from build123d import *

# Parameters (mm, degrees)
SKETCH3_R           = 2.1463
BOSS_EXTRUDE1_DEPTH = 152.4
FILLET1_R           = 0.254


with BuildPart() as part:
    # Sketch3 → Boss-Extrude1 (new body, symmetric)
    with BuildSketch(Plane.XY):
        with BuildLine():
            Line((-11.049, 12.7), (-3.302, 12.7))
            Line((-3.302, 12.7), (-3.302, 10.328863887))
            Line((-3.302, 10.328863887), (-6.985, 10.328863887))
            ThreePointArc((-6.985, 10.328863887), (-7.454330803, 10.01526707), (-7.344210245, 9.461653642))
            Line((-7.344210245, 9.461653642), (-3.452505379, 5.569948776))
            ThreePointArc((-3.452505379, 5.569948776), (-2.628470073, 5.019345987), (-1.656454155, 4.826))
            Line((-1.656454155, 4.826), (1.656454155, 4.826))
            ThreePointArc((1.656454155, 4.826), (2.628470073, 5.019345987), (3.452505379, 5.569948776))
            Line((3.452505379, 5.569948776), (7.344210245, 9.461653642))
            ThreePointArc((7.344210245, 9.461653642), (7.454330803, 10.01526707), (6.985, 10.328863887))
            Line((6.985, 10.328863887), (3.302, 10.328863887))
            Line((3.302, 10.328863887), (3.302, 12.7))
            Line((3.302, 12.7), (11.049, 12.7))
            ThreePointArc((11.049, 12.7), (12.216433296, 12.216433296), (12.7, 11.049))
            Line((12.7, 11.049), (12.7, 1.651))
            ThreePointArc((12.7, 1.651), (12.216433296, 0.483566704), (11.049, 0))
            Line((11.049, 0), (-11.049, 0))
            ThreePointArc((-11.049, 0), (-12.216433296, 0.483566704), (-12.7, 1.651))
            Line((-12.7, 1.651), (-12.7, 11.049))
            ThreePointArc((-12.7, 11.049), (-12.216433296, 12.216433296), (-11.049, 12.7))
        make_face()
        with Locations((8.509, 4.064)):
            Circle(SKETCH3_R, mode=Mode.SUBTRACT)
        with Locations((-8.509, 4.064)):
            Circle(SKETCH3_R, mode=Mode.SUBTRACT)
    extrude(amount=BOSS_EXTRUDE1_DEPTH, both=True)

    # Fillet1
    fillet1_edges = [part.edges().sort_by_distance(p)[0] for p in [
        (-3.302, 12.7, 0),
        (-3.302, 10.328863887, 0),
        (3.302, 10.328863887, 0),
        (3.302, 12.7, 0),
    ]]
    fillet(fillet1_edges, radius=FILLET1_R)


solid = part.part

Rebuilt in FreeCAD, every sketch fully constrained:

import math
import FreeCAD as App
import Part
import Sketcher
from FreeCAD import Vector
Q = App.Units.Quantity


def edges_at(feature, points):
    """Names of the edges that pass closest to the given points."""
    edges = feature.Shape.Edges
    near = lambda p: min(range(len(edges)), key=lambda i: edges[i].distToShape(Part.Vertex(*p))[0])
    return sorted({f"Edge{near(p) + 1}" for p in points})

doc = App.newDocument("Part")
body = doc.addObject("PartDesign::Body", "Body")

# Sketch on XY plane
sketch1 = doc.addObject("Sketcher::SketchObject", "Sketch")
body.addObject(sketch1)
sketch1.AttachmentSupport = (doc.XY_Plane, [""])
sketch1.MapMode = "FlatFace"
sketch1.addGeometry([
    Part.LineSegment(Vector(-3.3, 12.7, 0), Vector(-11, 12.7, 0)),  # 0
    Part.ArcOfCircle(Part.Circle(Vector(-11, 11, 0), Vector(0, 0, 1), 1.7), math.radians(90), math.radians(180)),  # 1
    Part.LineSegment(Vector(-12.7, 11, 0), Vector(-12.7, 1.7, 0)),  # 2
    Part.ArcOfCircle(Part.Circle(Vector(-11, 1.7, 0), Vector(0, 0, 1), 1.7), math.radians(180), math.radians(270)),  # 3
    Part.LineSegment(Vector(-11, 0, 0), Vector(11, 0, 0)),  # 4
    Part.ArcOfCircle(Part.Circle(Vector(11, 1.7, 0), Vector(0, 0, 1), 1.7), math.radians(-90), math.radians(0)),  # 5
    Part.LineSegment(Vector(12.7, 1.7, 0), Vector(12.7, 11, 0)),  # 6
    Part.ArcOfCircle(Part.Circle(Vector(11, 11, 0), Vector(0, 0, 1), 1.7), math.radians(0), math.radians(90)),  # 7
    Part.LineSegment(Vector(11, 12.7, 0), Vector(3.3, 12.7, 0)),  # 8
    Part.LineSegment(Vector(3.3, 12.7, 0), Vector(3.3, 10.3, 0)),  # 9
    Part.LineSegment(Vector(3.3, 10.3, 0), Vector(7, 10.3, 0)),  # 10
    Part.ArcOfCircle(Part.Circle(Vector(7, 9.8, 0), Vector(0, 0, 1), 0.5), math.radians(-45), math.radians(90)),  # 11
    Part.LineSegment(Vector(7.3, 9.5, 0), Vector(3.5, 5.6, 0)),  # 12
    Part.ArcOfCircle(Part.Circle(Vector(1.7, 7.4, 0), Vector(0, 0, 1), 2.5), math.radians(-90), math.radians(-45)),  # 13
    Part.LineSegment(Vector(1.7, 4.8, 0), Vector(-1.7, 4.8, 0)),  # 14
    Part.ArcOfCircle(Part.Circle(Vector(-1.7, 7.4, 0), Vector(0, 0, 1), 2.5), math.radians(-135), math.radians(-90)),  # 15
    Part.LineSegment(Vector(-3.5, 5.6, 0), Vector(-7.3, 9.5, 0)),  # 16
    Part.ArcOfCircle(Part.Circle(Vector(-7, 9.8, 0), Vector(0, 0, 1), 0.5), math.radians(90), math.radians(225)),  # 17
    Part.LineSegment(Vector(-7, 10.3, 0), Vector(-3.3, 10.3, 0)),  # 18
    Part.LineSegment(Vector(-3.3, 10.3, 0), Vector(-3.3, 12.7, 0)),  # 19
    Part.Circle(Vector(8.5, 4.1, 0), Vector(0, 0, 1), 2.1),  # 20
    Part.Circle(Vector(-8.5, 4.1, 0), Vector(0, 0, 1), 2.1),  # 21
], False)
sketch1.addConstraint([
    Sketcher.Constraint("Tangent", 0, 2, 1, 1),
    Sketcher.Constraint("Tangent", 1, 2, 2, 1),
    Sketcher.Constraint("Tangent", 2, 2, 3, 1),
    Sketcher.Constraint("Tangent", 3, 2, 4, 1),
    Sketcher.Constraint("Tangent", 4, 2, 5, 1),
    Sketcher.Constraint("Tangent", 5, 2, 6, 1),
    Sketcher.Constraint("Tangent", 6, 2, 7, 1),
    Sketcher.Constraint("Tangent", 7, 2, 8, 1),
    Sketcher.Constraint("Coincident", 8, 2, 9, 1),
    Sketcher.Constraint("Coincident", 9, 2, 10, 1),
    Sketcher.Constraint("Tangent", 10, 2, 11, 2),
    Sketcher.Constraint("Tangent", 11, 1, 12, 1),
    Sketcher.Constraint("Tangent", 12, 2, 13, 2),
    Sketcher.Constraint("Tangent", 13, 1, 14, 1),
    Sketcher.Constraint("Tangent", 14, 2, 15, 2),
    Sketcher.Constraint("Tangent", 15, 1, 16, 1),
    Sketcher.Constraint("Tangent", 16, 2, 17, 2),
    Sketcher.Constraint("Tangent", 17, 1, 18, 1),
    Sketcher.Constraint("Coincident", 18, 2, 19, 1),
    Sketcher.Constraint("Coincident", 19, 2, 0, 1),
    Sketcher.Constraint("Horizontal", 0),
    Sketcher.Constraint("Vertical", 2),
    Sketcher.Constraint("Horizontal", 4),
    Sketcher.Constraint("Vertical", 6),
    Sketcher.Constraint("Horizontal", 8),
    Sketcher.Constraint("Vertical", 9),
    Sketcher.Constraint("Horizontal", 10),
    Sketcher.Constraint("Horizontal", 14),
    Sketcher.Constraint("Horizontal", 18),
    Sketcher.Constraint("Vertical", 19),
    Sketcher.Constraint("Equal", 1, 3),
    Sketcher.Constraint("Equal", 3, 5),
    Sketcher.Constraint("Equal", 5, 7),
    Sketcher.Constraint("Equal", 13, 15),
    Sketcher.Constraint("Equal", 11, 17),
    Sketcher.Constraint("Equal", 20, 21),
    Sketcher.Constraint("Symmetric", 3, 2, 4, 2, -1, 1),
    Sketcher.Constraint("Symmetric", 11, 3, 17, 3, -2),
    Sketcher.Constraint("Symmetric", 20, 3, 21, 3, -2),
    Sketcher.Constraint("Symmetric", 8, 2, 19, 2, -2),
    Sketcher.Constraint("Perpendicular", 12, 16),
    Sketcher.Constraint("Horizontal", 12, 2, 15, 1),
    Sketcher.Constraint("Radius", 13, Q("0.1 in")),
    Sketcher.Constraint("Radius", 11, Q("0.02 in")),
    Sketcher.Constraint("Diameter", 20, Q("0.169 in")),
    Sketcher.Constraint("Radius", 1, Q("0.065 in")),
    Sketcher.Constraint("DistanceX", 4, 1, 4, 2, Q("0.87 in")),
    Sketcher.Constraint("DistanceY", 2, 2, 2, 1, Q("0.37 in")),
    Sketcher.Constraint("DistanceX", 20, 3, 5, 3, Q("0.1 in")),
    Sketcher.Constraint("DistanceX", 0, 2, 0, 1, Q("0.305 in")),
    Sketcher.Constraint("DistanceX", 10, 1, 10, 2, Q("0.145 in")),
    Sketcher.Constraint("DistanceY", -1, 1, 13, 3, Q("0.29 in")),
    Sketcher.Constraint("DistanceY", -1, 1, 20, 3, Q("0.16 in")),
    Sketcher.Constraint("Distance", 12, Q("5.503702 mm")),
])
pad1 = doc.addObject("PartDesign::Pad", "Pad")
body.addObject(pad1)
pad1.Profile = sketch1
pad1.Length = Q("12 in")
pad1.Midplane = True
doc.recompute()

fillet = doc.addObject("PartDesign::Fillet", "Fillet")
body.addObject(fillet)
fillet.Base = (pad1, edges_at(pad1, [
    (-3.302, 12.7, 0),
    (-3.302, 10.329, 0),
    (3.302, 10.329, 0),
    (3.302, 12.7, 0),
]))
fillet.Radius = Q("0.01 in")

doc.recompute()
